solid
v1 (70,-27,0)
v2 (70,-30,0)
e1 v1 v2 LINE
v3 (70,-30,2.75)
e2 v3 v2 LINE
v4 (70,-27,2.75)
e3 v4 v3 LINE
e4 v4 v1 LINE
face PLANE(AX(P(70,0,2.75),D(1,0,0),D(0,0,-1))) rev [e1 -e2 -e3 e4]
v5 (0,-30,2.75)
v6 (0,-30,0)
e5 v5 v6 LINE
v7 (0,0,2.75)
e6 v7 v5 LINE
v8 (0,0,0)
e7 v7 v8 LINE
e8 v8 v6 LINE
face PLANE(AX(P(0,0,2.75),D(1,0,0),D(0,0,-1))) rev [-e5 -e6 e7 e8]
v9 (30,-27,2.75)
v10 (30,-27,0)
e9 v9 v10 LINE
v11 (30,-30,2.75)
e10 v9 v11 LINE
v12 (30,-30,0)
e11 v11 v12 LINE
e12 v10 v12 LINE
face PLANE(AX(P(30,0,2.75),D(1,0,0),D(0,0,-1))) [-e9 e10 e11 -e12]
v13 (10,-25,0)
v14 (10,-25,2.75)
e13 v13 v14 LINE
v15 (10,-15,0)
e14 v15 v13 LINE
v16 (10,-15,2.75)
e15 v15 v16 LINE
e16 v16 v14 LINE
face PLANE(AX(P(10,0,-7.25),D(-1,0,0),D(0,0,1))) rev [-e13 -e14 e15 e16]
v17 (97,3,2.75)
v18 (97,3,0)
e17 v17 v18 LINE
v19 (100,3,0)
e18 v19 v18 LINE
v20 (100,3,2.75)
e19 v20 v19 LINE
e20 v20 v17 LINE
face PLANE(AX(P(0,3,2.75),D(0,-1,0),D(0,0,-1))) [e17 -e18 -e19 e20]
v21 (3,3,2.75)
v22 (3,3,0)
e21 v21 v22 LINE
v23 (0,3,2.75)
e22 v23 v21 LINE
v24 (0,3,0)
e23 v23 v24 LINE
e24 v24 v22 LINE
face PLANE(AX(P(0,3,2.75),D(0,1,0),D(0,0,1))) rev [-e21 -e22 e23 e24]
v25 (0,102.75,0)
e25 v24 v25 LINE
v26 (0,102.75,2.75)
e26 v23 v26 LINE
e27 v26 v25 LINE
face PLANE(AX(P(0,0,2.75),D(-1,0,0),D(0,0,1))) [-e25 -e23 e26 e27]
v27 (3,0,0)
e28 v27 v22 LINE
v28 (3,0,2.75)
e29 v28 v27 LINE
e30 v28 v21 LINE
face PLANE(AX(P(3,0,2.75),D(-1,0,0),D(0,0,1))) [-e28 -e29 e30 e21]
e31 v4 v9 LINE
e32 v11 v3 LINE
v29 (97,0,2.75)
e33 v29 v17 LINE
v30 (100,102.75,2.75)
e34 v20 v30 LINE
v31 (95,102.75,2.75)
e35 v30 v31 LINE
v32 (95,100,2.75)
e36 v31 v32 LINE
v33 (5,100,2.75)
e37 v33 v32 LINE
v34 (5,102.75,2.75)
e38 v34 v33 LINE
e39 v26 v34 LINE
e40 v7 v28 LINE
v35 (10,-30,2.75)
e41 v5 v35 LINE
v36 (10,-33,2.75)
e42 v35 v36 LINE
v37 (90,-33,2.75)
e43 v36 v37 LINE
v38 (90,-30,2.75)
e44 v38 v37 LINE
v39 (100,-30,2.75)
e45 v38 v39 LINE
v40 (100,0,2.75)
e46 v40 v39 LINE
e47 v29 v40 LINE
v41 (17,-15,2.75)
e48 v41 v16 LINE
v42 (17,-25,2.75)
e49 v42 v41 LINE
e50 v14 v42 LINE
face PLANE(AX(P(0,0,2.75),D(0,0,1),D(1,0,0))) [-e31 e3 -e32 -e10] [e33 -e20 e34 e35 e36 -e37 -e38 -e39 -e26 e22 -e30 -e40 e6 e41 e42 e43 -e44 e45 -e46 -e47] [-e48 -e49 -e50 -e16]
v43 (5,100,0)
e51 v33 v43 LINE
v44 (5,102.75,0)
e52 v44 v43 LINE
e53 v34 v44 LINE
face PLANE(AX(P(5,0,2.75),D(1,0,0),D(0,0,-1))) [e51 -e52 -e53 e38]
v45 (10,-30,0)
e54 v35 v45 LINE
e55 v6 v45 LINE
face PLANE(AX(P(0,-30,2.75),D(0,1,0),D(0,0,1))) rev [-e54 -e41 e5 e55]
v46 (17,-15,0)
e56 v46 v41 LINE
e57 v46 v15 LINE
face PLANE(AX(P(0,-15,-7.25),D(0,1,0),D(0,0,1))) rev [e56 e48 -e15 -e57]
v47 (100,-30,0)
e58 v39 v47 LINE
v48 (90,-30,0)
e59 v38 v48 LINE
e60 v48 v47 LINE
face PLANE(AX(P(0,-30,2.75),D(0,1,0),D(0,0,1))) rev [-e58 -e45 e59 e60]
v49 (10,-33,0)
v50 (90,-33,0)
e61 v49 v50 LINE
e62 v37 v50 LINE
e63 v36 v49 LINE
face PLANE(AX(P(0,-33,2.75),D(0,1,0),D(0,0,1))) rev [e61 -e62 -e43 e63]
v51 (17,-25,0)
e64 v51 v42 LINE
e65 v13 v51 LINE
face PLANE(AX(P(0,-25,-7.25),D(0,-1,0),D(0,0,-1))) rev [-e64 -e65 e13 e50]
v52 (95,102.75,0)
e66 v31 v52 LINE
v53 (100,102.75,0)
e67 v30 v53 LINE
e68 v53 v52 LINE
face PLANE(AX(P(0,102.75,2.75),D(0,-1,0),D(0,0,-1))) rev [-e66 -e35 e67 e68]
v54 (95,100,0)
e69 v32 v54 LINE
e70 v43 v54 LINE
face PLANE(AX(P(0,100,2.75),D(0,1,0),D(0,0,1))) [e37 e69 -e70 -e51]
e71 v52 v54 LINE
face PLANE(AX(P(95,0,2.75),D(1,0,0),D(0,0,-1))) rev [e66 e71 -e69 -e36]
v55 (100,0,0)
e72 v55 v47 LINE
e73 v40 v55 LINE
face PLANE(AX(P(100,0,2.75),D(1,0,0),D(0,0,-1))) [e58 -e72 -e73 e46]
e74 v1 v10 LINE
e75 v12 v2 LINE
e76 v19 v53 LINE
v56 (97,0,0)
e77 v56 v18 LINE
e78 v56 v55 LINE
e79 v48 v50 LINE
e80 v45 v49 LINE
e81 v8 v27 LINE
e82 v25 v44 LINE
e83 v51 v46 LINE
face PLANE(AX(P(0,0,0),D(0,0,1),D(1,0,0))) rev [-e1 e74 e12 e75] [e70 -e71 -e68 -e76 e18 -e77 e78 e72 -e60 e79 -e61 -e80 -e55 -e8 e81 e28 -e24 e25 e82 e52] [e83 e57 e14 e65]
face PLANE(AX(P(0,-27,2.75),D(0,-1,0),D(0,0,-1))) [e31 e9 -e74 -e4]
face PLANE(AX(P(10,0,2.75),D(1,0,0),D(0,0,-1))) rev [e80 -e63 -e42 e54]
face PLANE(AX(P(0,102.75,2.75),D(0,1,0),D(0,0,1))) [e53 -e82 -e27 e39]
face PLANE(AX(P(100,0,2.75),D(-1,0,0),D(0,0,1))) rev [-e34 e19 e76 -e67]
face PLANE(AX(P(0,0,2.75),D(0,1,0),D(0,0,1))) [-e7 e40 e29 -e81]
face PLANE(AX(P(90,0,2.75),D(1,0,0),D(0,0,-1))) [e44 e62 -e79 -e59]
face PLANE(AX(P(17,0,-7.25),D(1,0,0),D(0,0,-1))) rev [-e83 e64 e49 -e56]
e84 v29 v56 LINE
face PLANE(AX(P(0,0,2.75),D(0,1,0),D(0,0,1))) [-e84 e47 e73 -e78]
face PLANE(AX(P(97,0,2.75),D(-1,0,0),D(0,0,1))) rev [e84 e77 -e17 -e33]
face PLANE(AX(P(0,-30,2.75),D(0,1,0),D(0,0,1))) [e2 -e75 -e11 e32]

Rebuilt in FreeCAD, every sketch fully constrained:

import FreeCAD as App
import Part
import Sketcher
from FreeCAD import Vector

doc = App.newDocument("Part")
params = doc.addObject("Spreadsheet::Sheet", "Params")
for row, (alias, value) in enumerate([
    ("sketch1_width", "5 mm"),
    ("sketch1_width2", "90 mm"),
    ("sketch1_width3", "3 mm"),
    ("sketch1_width4", "10 mm"),
    ("sketch1_width5", "40 mm"),
    ("pad1_length", "2.75 mm"),
    ("sketch2_width", "7 mm"),
    ("sketch2_height", "10 mm"),
    ("pocket1_length", "10 mm"),
], start=1):
    params.set(f"A{row}", alias)
    params.set(f"B{row}", "=" + value)
    params.setAlias(f"B{row}", alias)

body = doc.addObject("PartDesign::Body", "Body")

sketch1 = body.newObject("Sketcher::SketchObject", "Sketch")
sketch1.AttachmentSupport = (doc.getObject("XY_Plane"), [""])
sketch1.MapMode = "FlatFace"
sketch1.addGeometry(Part.LineSegment(Vector(100, 102.8, 0), Vector(95, 102.8, 0)), False)
sketch1.addGeometry(Part.LineSegment(Vector(95, 102.8, 0), Vector(95, 100, 0)), False)
sketch1.addGeometry(Part.LineSegment(Vector(95, 100, 0), Vector(5, 100, 0)), False)
sketch1.addGeometry(Part.LineSegment(Vector(5, 100, 0), Vector(5, 102.8, 0)), False)
sketch1.addGeometry(Part.LineSegment(Vector(5, 102.8, 0), Vector(0, 102.8, 0)), False)
sketch1.addGeometry(Part.LineSegment(Vector(0, 102.8, 0), Vector(0, 3, 0)), False)
sketch1.addGeometry(Part.LineSegment(Vector(0, 3, 0), Vector(3, 3, 0)), False)
sketch1.addGeometry(Part.LineSegment(Vector(3, 3, 0), Vector(3, 0, 0)), False)
sketch1.addGeometry(Part.LineSegment(Vector(3, 0, 0), Vector(0, 0, 0)), False)
sketch1.addGeometry(Part.LineSegment(Vector(0, 0, 0), Vector(0, -30, 0)), False)
sketch1.addGeometry(Part.LineSegment(Vector(0, -30, 0), Vector(10, -30, 0)), False)
sketch1.addGeometry(Part.LineSegment(Vector(10, -30, 0), Vector(10, -33, 0)), False)
sketch1.addGeometry(Part.LineSegment(Vector(10, -33, 0), Vector(90, -33, 0)), False)
sketch1.addGeometry(Part.LineSegment(Vector(90, -33, 0), Vector(90, -30, 0)), False)
sketch1.addGeometry(Part.LineSegment(Vector(90, -30, 0), Vector(100, -30, 0)), False)
sketch1.addGeometry(Part.LineSegment(Vector(100, -30, 0), Vector(100, 0, 0)), False)
sketch1.addGeometry(Part.LineSegment(Vector(100, 0, 0), Vector(97, 0, 0)), False)
sketch1.addGeometry(Part.LineSegment(Vector(97, 0, 0), Vector(97, 3, 0)), False)
sketch1.addGeometry(Part.LineSegment(Vector(97, 3, 0), Vector(100, 3, 0)), False)
sketch1.addGeometry(Part.LineSegment(Vector(100, 3, 0), Vector(100, 102.8, 0)), False)
sketch1.addGeometry(Part.LineSegment(Vector(30, -30, 0), Vector(30, -27, 0)), False)
sketch1.addGeometry(Part.LineSegment(Vector(30, -27, 0), Vector(70, -27, 0)), False)
sketch1.addGeometry(Part.LineSegment(Vector(70, -27, 0), Vector(70, -30, 0)), False)
sketch1.addGeometry(Part.LineSegment(Vector(70, -30, 0), Vector(30, -30, 0)), False)
sketch1.addConstraint(Sketcher.Constraint("Coincident", 0, 2, 1, 1))
sketch1.addConstraint(Sketcher.Constraint("Coincident", 1, 2, 2, 1))
sketch1.addConstraint(Sketcher.Constraint("Coincident", 2, 2, 3, 1))
sketch1.addConstraint(Sketcher.Constraint("Coincident", 3, 2, 4, 1))
sketch1.addConstraint(Sketcher.Constraint("Coincident", 4, 2, 5, 1))
sketch1.addConstraint(Sketcher.Constraint("Coincident", 5, 2, 6, 1))
sketch1.addConstraint(Sketcher.Constraint("Coincident", 6, 2, 7, 1))
sketch1.addConstraint(Sketcher.Constraint("Coincident", 7, 2, 8, 1))
sketch1.addConstraint(Sketcher.Constraint("Coincident", 8, 2, 9, 1))
sketch1.addConstraint(Sketcher.Constraint("Coincident", 9, 2, 10, 1))
sketch1.addConstraint(Sketcher.Constraint("Coincident", 10, 2, 11, 1))
sketch1.addConstraint(Sketcher.Constraint("Coincident", 11, 2, 12, 1))
sketch1.addConstraint(Sketcher.Constraint("Coincident", 12, 2, 13, 1))
sketch1.addConstraint(Sketcher.Constraint("Coincident", 13, 2, 14, 1))
sketch1.addConstraint(Sketcher.Constraint("Coincident", 14, 2, 15, 1))
sketch1.addConstraint(Sketcher.Constraint("Coincident", 15, 2, 16, 1))
sketch1.addConstraint(Sketcher.Constraint("Coincident", 16, 2, 17, 1))
sketch1.addConstraint(Sketcher.Constraint("Coincident", 17, 2, 18, 1))
sketch1.addConstraint(Sketcher.Constraint("Coincident", 18, 2, 19, 1))
sketch1.addConstraint(Sketcher.Constraint("Coincident", 19, 2, 0, 1))
sketch1.addConstraint(Sketcher.Constraint("Coincident", 20, 2, 21, 1))
sketch1.addConstraint(Sketcher.Constraint("Coincident", 21, 2, 22, 1))
sketch1.addConstraint(Sketcher.Constraint("Coincident", 22, 2, 23, 1))
sketch1.addConstraint(Sketcher.Constraint("Coincident", 23, 2, 20, 1))
sketch1.addConstraint(Sketcher.Constraint("Horizontal", 0))
sketch1.addConstraint(Sketcher.Constraint("Vertical", 1))
sketch1.addConstraint(Sketcher.Constraint("Horizontal", 2))
sketch1.addConstraint(Sketcher.Constraint("Vertical", 3))
sketch1.addConstraint(Sketcher.Constraint("Horizontal", 4))
sketch1.addConstraint(Sketcher.Constraint("Vertical", 5))
sketch1.addConstraint(Sketcher.Constraint("Horizontal", 6))
sketch1.addConstraint(Sketcher.Constraint("Vertical", 7))
sketch1.addConstraint(Sketcher.Constraint("Horizontal", 8))
sketch1.addConstraint(Sketcher.Constraint("Vertical", 9))
sketch1.addConstraint(Sketcher.Constraint("Horizontal", 10))
sketch1.addConstraint(Sketcher.Constraint("Vertical", 11))
sketch1.addConstraint(Sketcher.Constraint("Horizontal", 12))
sketch1.addConstraint(Sketcher.Constraint("Vertical", 13))
sketch1.addConstraint(Sketcher.Constraint("Horizontal", 14))
sketch1.addConstraint(Sketcher.Constraint("Vertical", 15))
sketch1.addConstraint(Sketcher.Constraint("Horizontal", 16))
sketch1.addConstraint(Sketcher.Constraint("Vertical", 17))
sketch1.addConstraint(Sketcher.Constraint("Horizontal", 18))
sketch1.addConstraint(Sketcher.Constraint("Vertical", 19))
sketch1.addConstraint(Sketcher.Constraint("Vertical", 20))
sketch1.addConstraint(Sketcher.Constraint("Horizontal", 21))
sketch1.addConstraint(Sketcher.Constraint("Vertical", 22))
sketch1.addConstraint(Sketcher.Constraint("Horizontal", 23))
sketch1.addConstraint(Sketcher.Constraint("Coincident", 8, 2, -1, 1))
sketch1.addConstraint(Sketcher.Constraint("PointOnObject", 4, 2, -2))
sketch1.addConstraint(Sketcher.Constraint("PointOnObject", 15, 2, -1))
sketch1.addConstraint(Sketcher.Constraint("Horizontal", 0, 2, 3, 2))
sketch1.addConstraint(Sketcher.Constraint("Horizontal", 10, 2, 13, 2))
sketch1.addConstraint(Sketcher.Constraint("Horizontal", 6, 2, 17, 2))
sketch1.addConstraint(Sketcher.Constraint("Horizontal", 14, 2, 22, 2))
sketch1.addConstraint(Sketcher.Constraint("Vertical", 15, 2, 18, 2))
sketch1.addConstraint(Sketcher.Constraint("Equal", 0, 4))
sketch1.addConstraint(Sketcher.Constraint("Equal", 10, 14))
sketch1.addConstraint(Sketcher.Constraint("Equal", 8, 16))
sketch1.addConstraint(Sketcher.Constraint("Equal", 18, 7))
sketch1.addConstraint(Sketcher.Constraint("Equal", 7, 11))
sketch1.addConstraint(Sketcher.Constraint("Equal", 17, 20))
sketch1.addConstraint(Sketcher.Constraint("DistanceX", 0, 2, 0, 1, 5.0))
sketch1.addConstraint(Sketcher.Constraint("DistanceX", 2, 2, 2, 1, 90.0))
sketch1.addConstraint(Sketcher.Constraint("DistanceX", 6, 1, 6, 2, 3.0))
sketch1.addConstraint(Sketcher.Constraint("DistanceX", 10, 1, 10, 2, 10.0))
sketch1.addConstraint(Sketcher.Constraint("DistanceX", 21, 1, 21, 2, 40.0))
sketch1.addConstraint(Sketcher.Constraint("DistanceY", 9, 2, 9, 1, 30.0))
sketch1.addConstraint(Sketcher.Constraint("DistanceY", -1, 1, 1, 2, 100.0))
sketch1.addConstraint(Sketcher.Constraint("DistanceX", -1, 1, 20, 2, 30.0))
sketch1.addConstraint(Sketcher.Constraint("DistanceY", 1, 2, 1, 1, 2.75))
sketch1.setExpression("Constraints[62]", "Params.sketch1_width")
sketch1.setExpression("Constraints[63]", "Params.sketch1_width2")
sketch1.setExpression("Constraints[64]", "Params.sketch1_width3")
sketch1.setExpression("Constraints[65]", "Params.sketch1_width4")
sketch1.setExpression("Constraints[66]", "Params.sketch1_width5")
pad1 = body.newObject("PartDesign::Pad", "Pad")
pad1.Profile = sketch1
pad1.setExpression("Length", "Params.pad1_length")

sketch2 = body.newObject("Sketcher::SketchObject", "Sketch001")
sketch2.AttachmentSupport = (doc.getObject("XY_Plane"), [""])
sketch2.MapMode = "FlatFace"
sketch2.AttachmentOffset = App.Placement(Vector(0, 0, 2.75), App.Rotation())
sketch2.addGeometry(Part.LineSegment(Vector(10, -15, 0), Vector(10, -25, 0)), False)
sketch2.addGeometry(Part.LineSegment(Vector(10, -25, 0), Vector(17, -25, 0)), False)
sketch2.addGeometry(Part.LineSegment(Vector(17, -25, 0), Vector(17, -15, 0)), False)
sketch2.addGeometry(Part.LineSegment(Vector(17, -15, 0), Vector(10, -15, 0)), False)
sketch2.addConstraint(Sketcher.Constraint("Coincident", 0, 2, 1, 1))
sketch2.addConstraint(Sketcher.Constraint("Coincident", 1, 2, 2, 1))
sketch2.addConstraint(Sketcher.Constraint("Coincident", 2, 2, 3, 1))
sketch2.addConstraint(Sketcher.Constraint("Coincident", 3, 2, 0, 1))
sketch2.addConstraint(Sketcher.Constraint("Vertical", 0))
sketch2.addConstraint(Sketcher.Constraint("Horizontal", 1))
sketch2.addConstraint(Sketcher.Constraint("Vertical", 2))
sketch2.addConstraint(Sketcher.Constraint("Horizontal", 3))
sketch2.addConstraint(Sketcher.Constraint("DistanceX", 1, 1, 1, 2, 7.0))
sketch2.addConstraint(Sketcher.Constraint("DistanceY", 0, 2, 0, 1, 10.0))
sketch2.addConstraint(Sketcher.Constraint("DistanceX", -1, 1, 0, 2, 10.0))
sketch2.addConstraint(Sketcher.Constraint("DistanceY", 0, 2, -1, 1, 25.0))
sketch2.setExpression("Constraints[8]", "Params.sketch2_width")
sketch2.setExpression("Constraints[9]", "Params.sketch2_height")
pocket1 = body.newObject("PartDesign::Pocket", "Pocket")
pocket1.Profile = sketch2
pocket1.setExpression("Length", "Params.pocket1_length")

doc.recompute()
